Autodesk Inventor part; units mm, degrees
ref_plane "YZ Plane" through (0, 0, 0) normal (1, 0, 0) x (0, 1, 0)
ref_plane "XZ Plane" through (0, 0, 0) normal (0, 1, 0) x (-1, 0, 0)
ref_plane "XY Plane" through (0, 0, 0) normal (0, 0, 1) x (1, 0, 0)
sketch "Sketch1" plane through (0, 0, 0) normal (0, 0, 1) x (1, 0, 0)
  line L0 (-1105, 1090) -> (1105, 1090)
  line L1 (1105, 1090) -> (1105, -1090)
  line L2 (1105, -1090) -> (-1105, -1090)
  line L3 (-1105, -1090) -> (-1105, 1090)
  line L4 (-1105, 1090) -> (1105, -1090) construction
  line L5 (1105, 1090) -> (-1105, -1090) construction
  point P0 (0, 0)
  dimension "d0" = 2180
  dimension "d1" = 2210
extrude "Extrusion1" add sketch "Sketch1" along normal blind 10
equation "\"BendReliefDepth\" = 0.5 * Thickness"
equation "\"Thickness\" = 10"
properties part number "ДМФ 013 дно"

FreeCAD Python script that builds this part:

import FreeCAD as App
import Part
import Sketcher
Q = App.Units.Quantity


def add_polygon(sketch, points):
    """Adds a closed chain of lines whose ends are joined by coincident constraints."""
    first, n = sketch.GeometryCount, len(points)
    for a, b in zip(points, points[1:] + points[:1]):
        sketch.addGeometry(Part.LineSegment(App.Vector(*a, 0), App.Vector(*b, 0)), False)
    for i in range(n):
        sketch.addConstraint(Sketcher.Constraint("Coincident", first + i, 2, first + (i + 1) % n, 1))

doc = App.newDocument("Part")
body = doc.addObject("PartDesign::Body", "Body")

sketch1 = body.newObject("Sketcher::SketchObject", "Sketch")
sketch1.AttachmentSupport = (doc.getObject("XY_Plane"), [""])
sketch1.MapMode = "FlatFace"
add_polygon(sketch1, [(1105, 1090), (-1105, 1090), (-1105, -1090), (1105, -1090)])
sketch1.addConstraint([
    Sketcher.Constraint("Horizontal", 0),
    Sketcher.Constraint("Vertical", 1),
    Sketcher.Constraint("Horizontal", 2),
    Sketcher.Constraint("Vertical", 3),
    Sketcher.Constraint("Symmetric", 0, 2, 2, 2, -1, 1),
    Sketcher.Constraint("DistanceX", 0, 2, 0, 1, Q("2210 mm")),
    Sketcher.Constraint("DistanceY", 1, 2, 1, 1, Q("2180 mm")),
])
pad1 = body.newObject("PartDesign::Pad", "Pad")
pad1.Profile = sketch1
pad1.Length = 10

doc.recompute()
